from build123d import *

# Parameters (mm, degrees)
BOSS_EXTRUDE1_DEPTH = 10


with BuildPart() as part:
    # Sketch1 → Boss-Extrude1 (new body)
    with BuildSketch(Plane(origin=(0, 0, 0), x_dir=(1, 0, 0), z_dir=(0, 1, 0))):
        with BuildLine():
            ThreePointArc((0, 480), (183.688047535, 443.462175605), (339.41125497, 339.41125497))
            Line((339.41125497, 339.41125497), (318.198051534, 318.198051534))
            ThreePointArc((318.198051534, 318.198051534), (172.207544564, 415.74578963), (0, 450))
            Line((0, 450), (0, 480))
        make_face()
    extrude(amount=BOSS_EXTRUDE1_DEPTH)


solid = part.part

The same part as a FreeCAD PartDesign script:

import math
import FreeCAD as App
import Part
import Sketcher

V = App.Vector
Q = App.Units.Quantity

doc = App.newDocument("Part")
body = doc.addObject("PartDesign::Body", "Body")

sketch1 = body.newObject("Sketcher::SketchObject", "Sketch")
sketch1.AttachmentSupport = (doc.getObject("XZ_Plane"), [""])
sketch1.MapMode = "FlatFace"
sketch1.addGeometry([
    Part.ArcOfCircle(Part.Circle(V(0, 0, 0), V(0, 0, 1), 480), math.radians(-90), math.radians(-45)),
    Part.LineSegment(V(0, -480, 0), V(0, -450, 0)),
    Part.ArcOfCircle(Part.Circle(V(0, 0, 0), V(0, 0, 1), 450), math.radians(-90), math.radians(-45)),
    Part.LineSegment(V(318, -318, 0), V(339, -339, 0)),
], False)
sketch1.addConstraint([
    Sketcher.Constraint("Coincident", 0, 1, 1, 1),
    Sketcher.Constraint("Coincident", 1, 2, 2, 1),
    Sketcher.Constraint("Coincident", 2, 2, 3, 1),
    Sketcher.Constraint("Coincident", 3, 2, 0, 2),
    Sketcher.Constraint("Vertical", 1),
    Sketcher.Constraint("Coincident", 0, 3, -1, 1),
    Sketcher.Constraint("Coincident", 2, 3, -1, 1),
    Sketcher.Constraint("PointOnObject", 1, 2, -2),
    Sketcher.Constraint("Radius", 0, Q("480 mm")),
    Sketcher.Constraint("Radius", 2, Q("450 mm")),
    Sketcher.Constraint("Angle", 3, Q("-45 deg")),
    Sketcher.Constraint("DistanceX", -1, 1, 3, 2, Q("339.411255 mm")),
])
pad1 = body.newObject("PartDesign::Pad", "Pad")
pad1.Profile = sketch1
pad1.Length = 10
pad1.Reversed = True

doc.recompute()
